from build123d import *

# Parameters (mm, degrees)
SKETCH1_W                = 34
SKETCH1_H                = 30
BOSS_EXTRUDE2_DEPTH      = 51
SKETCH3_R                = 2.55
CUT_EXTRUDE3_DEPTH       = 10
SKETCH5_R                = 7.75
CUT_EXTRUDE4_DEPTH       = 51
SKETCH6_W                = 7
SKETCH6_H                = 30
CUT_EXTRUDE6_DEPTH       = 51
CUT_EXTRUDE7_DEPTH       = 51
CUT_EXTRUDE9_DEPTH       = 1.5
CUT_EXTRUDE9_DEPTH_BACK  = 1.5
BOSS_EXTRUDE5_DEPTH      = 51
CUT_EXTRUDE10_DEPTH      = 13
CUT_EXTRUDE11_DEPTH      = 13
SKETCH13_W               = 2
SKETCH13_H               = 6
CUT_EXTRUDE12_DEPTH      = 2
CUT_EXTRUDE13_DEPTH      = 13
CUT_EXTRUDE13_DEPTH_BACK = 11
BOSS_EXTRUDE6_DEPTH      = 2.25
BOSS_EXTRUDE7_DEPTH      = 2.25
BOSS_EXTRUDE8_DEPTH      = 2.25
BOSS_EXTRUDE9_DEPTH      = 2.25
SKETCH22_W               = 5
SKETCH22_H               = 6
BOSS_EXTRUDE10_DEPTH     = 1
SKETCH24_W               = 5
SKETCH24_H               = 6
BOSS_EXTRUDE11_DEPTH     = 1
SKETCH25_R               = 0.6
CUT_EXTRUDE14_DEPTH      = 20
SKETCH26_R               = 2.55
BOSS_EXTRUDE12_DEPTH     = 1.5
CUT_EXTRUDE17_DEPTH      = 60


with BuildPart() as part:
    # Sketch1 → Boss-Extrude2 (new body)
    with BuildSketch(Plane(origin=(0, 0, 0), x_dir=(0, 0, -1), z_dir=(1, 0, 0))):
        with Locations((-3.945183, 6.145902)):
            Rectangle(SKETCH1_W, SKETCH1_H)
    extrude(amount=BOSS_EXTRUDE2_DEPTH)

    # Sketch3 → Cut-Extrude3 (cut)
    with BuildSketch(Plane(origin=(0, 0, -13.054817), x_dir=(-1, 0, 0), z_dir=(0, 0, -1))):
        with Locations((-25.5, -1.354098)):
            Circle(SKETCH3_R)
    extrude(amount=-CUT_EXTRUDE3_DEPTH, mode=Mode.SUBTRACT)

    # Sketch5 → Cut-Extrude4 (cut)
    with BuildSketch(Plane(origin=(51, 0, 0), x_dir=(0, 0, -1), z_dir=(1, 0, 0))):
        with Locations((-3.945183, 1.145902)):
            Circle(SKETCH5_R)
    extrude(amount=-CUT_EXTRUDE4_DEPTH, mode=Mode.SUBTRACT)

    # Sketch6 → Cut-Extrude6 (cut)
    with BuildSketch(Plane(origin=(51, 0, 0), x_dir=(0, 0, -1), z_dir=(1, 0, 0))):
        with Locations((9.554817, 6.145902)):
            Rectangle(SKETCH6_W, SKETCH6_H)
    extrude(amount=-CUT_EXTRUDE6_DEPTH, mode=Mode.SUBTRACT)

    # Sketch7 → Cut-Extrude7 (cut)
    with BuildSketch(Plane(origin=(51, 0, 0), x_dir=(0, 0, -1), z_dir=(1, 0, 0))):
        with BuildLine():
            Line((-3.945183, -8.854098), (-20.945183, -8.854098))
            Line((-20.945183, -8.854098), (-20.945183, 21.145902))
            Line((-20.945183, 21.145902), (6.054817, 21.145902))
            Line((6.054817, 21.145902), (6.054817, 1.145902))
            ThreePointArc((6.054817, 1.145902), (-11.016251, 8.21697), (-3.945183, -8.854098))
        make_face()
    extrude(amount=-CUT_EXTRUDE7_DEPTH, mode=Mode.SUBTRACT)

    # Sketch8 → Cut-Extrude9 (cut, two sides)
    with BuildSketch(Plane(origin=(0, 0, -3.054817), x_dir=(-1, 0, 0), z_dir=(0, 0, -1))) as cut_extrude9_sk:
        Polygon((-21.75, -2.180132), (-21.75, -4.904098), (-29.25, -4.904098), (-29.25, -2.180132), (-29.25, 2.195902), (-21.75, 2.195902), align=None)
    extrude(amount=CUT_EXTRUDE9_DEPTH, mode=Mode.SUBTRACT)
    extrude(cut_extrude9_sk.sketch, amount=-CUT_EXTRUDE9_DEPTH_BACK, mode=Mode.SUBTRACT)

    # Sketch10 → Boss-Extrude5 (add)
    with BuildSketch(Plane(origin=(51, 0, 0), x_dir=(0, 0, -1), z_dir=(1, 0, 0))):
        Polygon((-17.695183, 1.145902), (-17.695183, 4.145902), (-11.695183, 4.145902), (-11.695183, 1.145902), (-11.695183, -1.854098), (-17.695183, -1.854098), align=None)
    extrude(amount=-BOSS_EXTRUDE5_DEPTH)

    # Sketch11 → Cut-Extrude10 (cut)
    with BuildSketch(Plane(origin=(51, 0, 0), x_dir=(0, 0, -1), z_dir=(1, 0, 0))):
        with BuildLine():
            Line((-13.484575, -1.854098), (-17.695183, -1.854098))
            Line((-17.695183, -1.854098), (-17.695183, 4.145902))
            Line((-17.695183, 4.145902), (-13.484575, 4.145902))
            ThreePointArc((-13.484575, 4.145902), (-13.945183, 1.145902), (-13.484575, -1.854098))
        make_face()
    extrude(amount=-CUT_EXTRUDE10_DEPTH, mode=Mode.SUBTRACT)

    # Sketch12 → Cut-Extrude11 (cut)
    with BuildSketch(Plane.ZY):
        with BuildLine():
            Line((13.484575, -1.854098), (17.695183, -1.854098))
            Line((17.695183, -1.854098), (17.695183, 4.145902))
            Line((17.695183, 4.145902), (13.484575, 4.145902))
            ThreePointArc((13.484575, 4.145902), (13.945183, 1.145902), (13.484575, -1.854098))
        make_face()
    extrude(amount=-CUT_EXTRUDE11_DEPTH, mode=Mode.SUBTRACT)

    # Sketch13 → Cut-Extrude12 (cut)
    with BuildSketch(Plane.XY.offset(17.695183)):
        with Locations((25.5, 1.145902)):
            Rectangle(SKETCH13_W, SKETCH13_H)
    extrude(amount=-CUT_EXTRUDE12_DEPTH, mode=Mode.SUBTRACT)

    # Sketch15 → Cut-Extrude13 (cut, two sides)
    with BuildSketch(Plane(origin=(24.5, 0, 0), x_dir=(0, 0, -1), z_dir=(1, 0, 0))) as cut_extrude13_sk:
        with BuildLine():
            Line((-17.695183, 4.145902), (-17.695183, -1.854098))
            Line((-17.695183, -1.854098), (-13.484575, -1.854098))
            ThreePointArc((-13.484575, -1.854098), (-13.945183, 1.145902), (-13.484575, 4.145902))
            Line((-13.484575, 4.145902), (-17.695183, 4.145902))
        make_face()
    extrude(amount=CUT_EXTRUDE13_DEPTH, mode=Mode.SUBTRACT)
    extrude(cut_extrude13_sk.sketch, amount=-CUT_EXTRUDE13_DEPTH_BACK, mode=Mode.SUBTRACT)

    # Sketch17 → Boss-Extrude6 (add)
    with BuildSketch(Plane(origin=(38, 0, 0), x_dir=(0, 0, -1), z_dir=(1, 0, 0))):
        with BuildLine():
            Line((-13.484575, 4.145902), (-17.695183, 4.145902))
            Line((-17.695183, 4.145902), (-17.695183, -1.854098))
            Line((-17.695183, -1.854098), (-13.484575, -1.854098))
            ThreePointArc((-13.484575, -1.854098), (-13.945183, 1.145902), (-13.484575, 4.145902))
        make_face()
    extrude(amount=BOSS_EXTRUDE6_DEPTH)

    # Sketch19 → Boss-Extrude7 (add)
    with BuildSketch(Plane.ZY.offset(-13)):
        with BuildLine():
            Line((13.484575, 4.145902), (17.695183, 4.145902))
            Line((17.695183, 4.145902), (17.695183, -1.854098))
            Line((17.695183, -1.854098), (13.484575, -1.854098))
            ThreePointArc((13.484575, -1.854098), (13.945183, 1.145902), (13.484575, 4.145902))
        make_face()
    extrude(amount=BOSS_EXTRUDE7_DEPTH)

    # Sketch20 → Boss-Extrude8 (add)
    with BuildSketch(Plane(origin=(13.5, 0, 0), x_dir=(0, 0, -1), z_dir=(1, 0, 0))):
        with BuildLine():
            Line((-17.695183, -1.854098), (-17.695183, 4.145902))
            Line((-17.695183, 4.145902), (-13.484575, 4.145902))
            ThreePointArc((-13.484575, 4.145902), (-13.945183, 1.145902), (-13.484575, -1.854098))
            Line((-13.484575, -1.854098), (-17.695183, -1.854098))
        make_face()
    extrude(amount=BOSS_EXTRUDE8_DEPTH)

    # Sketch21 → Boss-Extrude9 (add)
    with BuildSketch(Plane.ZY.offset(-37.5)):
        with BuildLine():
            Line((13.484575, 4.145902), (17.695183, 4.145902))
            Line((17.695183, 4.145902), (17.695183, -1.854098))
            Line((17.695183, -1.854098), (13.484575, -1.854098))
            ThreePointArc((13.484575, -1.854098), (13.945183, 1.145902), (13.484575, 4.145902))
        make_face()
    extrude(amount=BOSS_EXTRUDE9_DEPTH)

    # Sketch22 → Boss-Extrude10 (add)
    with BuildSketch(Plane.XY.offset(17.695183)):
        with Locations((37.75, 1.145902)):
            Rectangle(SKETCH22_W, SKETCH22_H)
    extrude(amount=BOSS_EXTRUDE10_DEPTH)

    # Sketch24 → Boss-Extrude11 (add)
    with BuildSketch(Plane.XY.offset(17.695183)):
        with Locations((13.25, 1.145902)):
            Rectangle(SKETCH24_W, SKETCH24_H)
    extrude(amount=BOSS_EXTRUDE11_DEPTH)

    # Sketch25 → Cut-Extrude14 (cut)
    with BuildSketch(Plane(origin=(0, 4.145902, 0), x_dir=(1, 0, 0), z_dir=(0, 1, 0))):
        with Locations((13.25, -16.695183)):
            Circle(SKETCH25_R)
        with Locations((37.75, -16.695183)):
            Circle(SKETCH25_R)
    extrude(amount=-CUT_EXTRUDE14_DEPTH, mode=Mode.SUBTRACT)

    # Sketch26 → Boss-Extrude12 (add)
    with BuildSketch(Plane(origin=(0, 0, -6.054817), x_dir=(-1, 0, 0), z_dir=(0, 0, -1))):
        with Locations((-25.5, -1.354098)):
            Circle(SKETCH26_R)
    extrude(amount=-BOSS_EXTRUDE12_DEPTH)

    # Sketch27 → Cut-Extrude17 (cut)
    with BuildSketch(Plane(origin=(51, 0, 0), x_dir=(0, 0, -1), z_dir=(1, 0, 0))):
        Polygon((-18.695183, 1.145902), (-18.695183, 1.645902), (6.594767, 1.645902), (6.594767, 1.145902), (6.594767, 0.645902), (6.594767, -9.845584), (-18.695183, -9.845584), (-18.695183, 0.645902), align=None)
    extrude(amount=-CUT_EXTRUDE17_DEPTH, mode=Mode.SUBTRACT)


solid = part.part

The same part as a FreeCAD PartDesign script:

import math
import FreeCAD as App
import Part
import Sketcher

doc = App.newDocument("Part")
params = doc.addObject("Spreadsheet::Sheet", "Params")
for row, (alias, value) in enumerate([
    ("sketch1_width", "30 mm"),
    ("sketch1_height", "34 mm"),
    ("pad1_length", "51 mm"),
    ("sketch2_diameter", "5.1 mm"),
    ("pocket1_length", "10 mm"),
    ("sketch3_diameter", "15.5 mm"),
    ("pocket2_length", "51 mm"),
    ("sketch4_width", "30 mm"),
    ("sketch4_height", "7 mm"),
    ("pocket3_length", "51 mm"),
    ("sketch5_radius", "10 mm"),
    ("sketch5_width", "20 mm"),
    ("sketch5_height", "17 mm"),
    ("pocket4_length", "51 mm"),
    ("sketch6_width", "7.5 mm"),
    ("sketch6_height", "7.1 mm"),
    ("pocket5_length", "1.5 mm"),
    ("pocket5_length2", "1.5 mm"),
    ("sketch7_width", "6 mm"),
    ("pad2_length", "51 mm"),
    ("sketch8_radius", "10 mm"),
    ("sketch8_width", "6 mm"),
    ("pocket6_length", "13 mm"),
    ("sketch9_radius", "10 mm"),
    ("sketch9_width", "6 mm"),
    ("pocket7_length", "13 mm"),
    ("sketch10_width", "2 mm"),
    ("sketch10_height", "6 mm"),
    ("pocket8_length", "2 mm"),
    ("sketch11_radius", "10 mm"),
    ("sketch11_width", "6 mm"),
    ("pocket9_length", "13 mm"),
    ("pocket9_length2", "11 mm"),
    ("sketch12_radius", "10 mm"),
    ("sketch12_width", "6 mm"),
    ("pad3_length", "2.25 mm"),
    ("sketch13_radius", "10 mm"),
    ("sketch13_width", "6 mm"),
    ("pad4_length", "2.25 mm"),
    ("sketch14_radius", "10 mm"),
    ("sketch14_width", "6 mm"),
    ("pad5_length", "2.25 mm"),
    ("sketch15_radius", "10 mm"),
    ("sketch15_width", "6 mm"),
    ("pad6_length", "2.25 mm"),
    ("sketch16_width", "5 mm"),
    ("sketch16_height", "6 mm"),
    ("pad7_length", "1 mm"),
    ("sketch17_width", "5 mm"),
    ("sketch17_height", "6 mm"),
    ("pad8_length", "1 mm"),
    ("sketch18_diameter", "1.2 mm"),
    ("pocket10_length", "20 mm"),
    ("sketch19_diameter", "5.1 mm"),
    ("pad9_length", "1.5 mm"),
    ("pocket11_length", "60 mm"),
], start=1):
    params.set(f"A{row}", alias)
    params.set(f"B{row}", "=" + value)
    params.setAlias(f"B{row}", alias)

body = doc.addObject("PartDesign::Body", "Body")

sketch1 = body.newObject("Sketcher::SketchObject", "Sketch")
sketch1.AttachmentSupport = (doc.getObject("YZ_Plane"), [""])
sketch1.MapMode = "FlatFace"
sketch1.addGeometry(Part.LineSegment(App.Vector(21, 21, 0), App.Vector(-9, 21, 0)), False)
sketch1.addGeometry(Part.LineSegment(App.Vector(-9, 21, 0), App.Vector(-9, -13, 0)), False)
sketch1.addGeometry(Part.LineSegment(App.Vector(-9, -13, 0), App.Vector(21, -13, 0)), False)
sketch1.addGeometry(Part.LineSegment(App.Vector(21, -13, 0), App.Vector(21, 21, 0)), False)
sketch1.addConstraint(Sketcher.Constraint("Coincident", 0, 2, 1, 1))
sketch1.addConstraint(Sketcher.Constraint("Coincident", 1, 2, 2, 1))
sketch1.addConstraint(Sketcher.Constraint("Coincident", 2, 2, 3, 1))
sketch1.addConstraint(Sketcher.Constraint("Coincident", 3, 2, 0, 1))
sketch1.addConstraint(Sketcher.Constraint("Horizontal", 0))
sketch1.addConstraint(Sketcher.Constraint("Vertical", 1))
sketch1.addConstraint(Sketcher.Constraint("Horizontal", 2))
sketch1.addConstraint(Sketcher.Constraint("Vertical", 3))
sketch1.addConstraint(Sketcher.Constraint("DistanceX", 0, 2, 0, 1, 30.0))
sketch1.addConstraint(Sketcher.Constraint("DistanceY", 1, 2, 1, 1, 34.0))
sketch1.addConstraint(Sketcher.Constraint("DistanceX", -1, 1, 2, 2, 21.145902))
sketch1.addConstraint(Sketcher.Constraint("DistanceY", -1, 1, 0, 2, 20.945183))
sketch1.setExpression("Constraints[8]", "Params.sketch1_width")
sketch1.setExpression("Constraints[9]", "Params.sketch1_height")
pad1 = body.newObject("PartDesign::Pad", "Pad")
pad1.Profile = sketch1
pad1.setExpression("Length", "Params.pad1_length")

sketch2 = body.newObject("Sketcher::SketchObject", "Sketch001")
sketch2.AttachmentSupport = (doc.getObject("XY_Plane"), [""])
sketch2.MapMode = "FlatFace"
sketch2.AttachmentOffset = App.Placement(App.Vector(0, 0, -13.054817), App.Rotation())
sketch2.addGeometry(Part.Circle(App.Vector(25.5, -1.4, 0), App.Vector(0, 0, 1), 2.5), False)
sketch2.addConstraint(Sketcher.Constraint("Diameter", 0, 5.1))
sketch2.addConstraint(Sketcher.Constraint("DistanceX", -1, 1, 0, 3, 25.5))
sketch2.addConstraint(Sketcher.Constraint("DistanceY", 0, 3, -1, 1, 1.354098))
sketch2.setExpression("Constraints[0]", "Params.sketch2_diameter")
pocket1 = body.newObject("PartDesign::Pocket", "Pocket")
pocket1.Profile = sketch2
pocket1.setExpression("Length", "Params.pocket1_length")
pocket1.Reversed = True

sketch3 = body.newObject("Sketcher::SketchObject", "Sketch002")
sketch3.AttachmentSupport = (doc.getObject("YZ_Plane"), [""])
sketch3.MapMode = "FlatFace"
sketch3.AttachmentOffset = App.Placement(App.Vector(0, 0, 51), App.Rotation())
sketch3.addGeometry(Part.Circle(App.Vector(1, 4, 0), App.Vector(0, 0, 1), 8), False)
sketch3.addConstraint(Sketcher.Constraint("Diameter", 0, 15.5))
sketch3.addConstraint(Sketcher.Constraint("DistanceX", -1, 1, 0, 3, 1.145902))
sketch3.addConstraint(Sketcher.Constraint("DistanceY", -1, 1, 0, 3, 3.945183))
sketch3.setExpression("Constraints[0]", "Params.sketch3_diameter")
pocket2 = body.newObject("PartDesign::Pocket", "Pocket001")
pocket2.Profile = sketch3
pocket2.setExpression("Length", "Params.pocket2_length")

sketch4 = body.newObject("Sketcher::SketchObject", "Sketch003")
sketch4.AttachmentSupport = (doc.getObject("YZ_Plane"), [""])
sketch4.MapMode = "FlatFace"
sketch4.AttachmentOffset = App.Placement(App.Vector(0, 0, 51), App.Rotation())
sketch4.addGeometry(Part.LineSegment(App.Vector(21, -6, 0), App.Vector(-9, -6, 0)), False)
sketch4.addGeometry(Part.LineSegment(App.Vector(-9, -6, 0), App.Vector(-9, -13, 0)), False)
sketch4.addGeometry(Part.LineSegment(App.Vector(-9, -13, 0), App.Vector(21, -13, 0)), False)
sketch4.addGeometry(Part.LineSegment(App.Vector(21, -13, 0), App.Vector(21, -6, 0)), False)
sketch4.addConstraint(Sketcher.Constraint("Coincident", 0, 2, 1, 1))
sketch4.addConstraint(Sketcher.Constraint("Coincident", 1, 2, 2, 1))
sketch4.addConstraint(Sketcher.Constraint("Coincident", 2, 2, 3, 1))
sketch4.addConstraint(Sketcher.Constraint("Coincident", 3, 2, 0, 1))
sketch4.addConstraint(Sketcher.Constraint("Horizontal", 0))
sketch4.addConstraint(Sketcher.Constraint("Vertical", 1))
sketch4.addConstraint(Sketcher.Constraint("Horizontal", 2))
sketch4.addConstraint(Sketcher.Constraint("Vertical", 3))
sketch4.addConstraint(Sketcher.Constraint("DistanceX", 0, 2, 0, 1, 30.0))
sketch4.addConstraint(Sketcher.Constraint("DistanceY", 1, 2, 1, 1, 7.0))
sketch4.addConstraint(Sketcher.Constraint("DistanceX", -1, 1, 2, 2, 21.145902))
sketch4.addConstraint(Sketcher.Constraint("DistanceY", 0, 2, -1, 1, 6.054817))
sketch4.setExpression("Constraints[8]", "Params.sketch4_width")
sketch4.setExpression("Constraints[9]", "Params.sketch4_height")
pocket3 = body.newObject("PartDesign::Pocket", "Pocket002")
pocket3.Profile = sketch4
pocket3.setExpression("Length", "Params.pocket3_length")

sketch5 = body.newObject("Sketcher::SketchObject", "Sketch004")
sketch5.AttachmentSupport = (doc.getObject("YZ_Plane"), [""])
sketch5.MapMode = "FlatFace"
sketch5.AttachmentOffset = App.Placement(App.Vector(0, 0, 51), App.Rotation())
sketch5.addGeometry(Part.LineSegment(App.Vector(-9, 21, 0), App.Vector(-9, 4, 0)), False)
sketch5.addGeometry(Part.ArcOfCircle(Part.Circle(App.Vector(1, 4, 0), App.Vector(0, 0, 1), 10), math.radians(-90), math.radians(180)), False)
sketch5.addGeometry(Part.LineSegment(App.Vector(1, -6, 0), App.Vector(21, -6, 0)), False)
sketch5.addGeometry(Part.LineSegment(App.Vector(21, -6, 0), App.Vector(21, 21, 0)), False)
sketch5.addGeometry(Part.LineSegment(App.Vector(21, 21, 0), App.Vector(-9, 21, 0)), False)
sketch5.addConstraint(Sketcher.Constraint("Tangent", 0, 2, 1, 2))
sketch5.addConstraint(Sketcher.Constraint("Tangent", 1, 1, 2, 1))
sketch5.addConstraint(Sketcher.Constraint("Coincident", 2, 2, 3, 1))
sketch5.addConstraint(Sketcher.Constraint("Coincident", 3, 2, 4, 1))
sketch5.addConstraint(Sketcher.Constraint("Coincident", 4, 2, 0, 1))
sketch5.addConstraint(Sketcher.Constraint("Vertical", 0))
sketch5.addConstraint(Sketcher.Constraint("Horizontal", 2))
sketch5.addConstraint(Sketcher.Constraint("Vertical", 3))
sketch5.addConstraint(Sketcher.Constraint("Horizontal", 4))
sketch5.addConstraint(Sketcher.Constraint("Radius", 1, 10.0))
sketch5.addConstraint(Sketcher.Constraint("DistanceX", 2, 1, 2, 2, 20.0))
sketch5.addConstraint(Sketcher.Constraint("DistanceY", 0, 2, 0, 1, 17.0))
sketch5.addConstraint(Sketcher.Constraint("DistanceX", -1, 1, 1, 1, 1.145902))
sketch5.addConstraint(Sketcher.Constraint("DistanceY", -1, 1, 1, 3, 3.945183))
sketch5.setExpression("Constraints[9]", "Params.sketch5_radius")
sketch5.setExpression("Constraints[10]", "Params.sketch5_width")
sketch5.setExpression("Constraints[11]", "Params.sketch5_height")
pocket4 = body.newObject("PartDesign::Pocket", "Pocket003")
pocket4.Profile = sketch5
pocket4.setExpression("Length", "Params.pocket4_length")

sketch6 = body.newObject("Sketcher::SketchObject", "Sketch005")
sketch6.AttachmentSupport = (doc.getObject("XY_Plane"), [""])
sketch6.MapMode = "FlatFace"
sketch6.AttachmentOffset = App.Placement(App.Vector(0, 0, -3.054817), App.Rotation())
sketch6.addGeometry(Part.LineSegment(App.Vector(22, -5, 0), App.Vector(22, 2, 0)), False)
sketch6.addGeometry(Part.LineSegment(App.Vector(22, 2, 0), App.Vector(29, 2, 0)), False)
sketch6.addGeometry(Part.LineSegment(App.Vector(29, 2, 0), App.Vector(29, -5, 0)), False)
sketch6.addGeometry(Part.LineSegment(App.Vector(29, -5, 0), App.Vector(22, -5, 0)), False)
sketch6.addConstraint(Sketcher.Constraint("Coincident", 0, 2, 1, 1))
sketch6.addConstraint(Sketcher.Constraint("Coincident", 1, 2, 2, 1))
sketch6.addConstraint(Sketcher.Constraint("Coincident", 2, 2, 3, 1))
sketch6.addConstraint(Sketcher.Constraint("Coincident", 3, 2, 0, 1))
sketch6.addConstraint(Sketcher.Constraint("Vertical", 0))
sketch6.addConstraint(Sketcher.Constraint("Horizontal", 1))
sketch6.addConstraint(Sketcher.Constraint("Vertical", 2))
sketch6.addConstraint(Sketcher.Constraint("Horizontal", 3))
sketch6.addConstraint(Sketcher.Constraint("DistanceX", 1, 1, 1, 2, 7.5))
sketch6.addConstraint(Sketcher.Constraint("DistanceY", 0, 1, 0, 2, 7.1))
sketch6.addConstraint(Sketcher.Constraint("DistanceX", -1, 1, 0, 2, 21.75))
sketch6.addConstraint(Sketcher.Constraint("DistanceY", -1, 1, 0, 2, 2.195902))
sketch6.setExpression("Constraints[8]", "Params.sketch6_width")
sketch6.setExpression("Constraints[9]", "Params.sketch6_height")
pocket5 = body.newObject("PartDesign::Pocket", "Pocket004")
pocket5.Profile = sketch6
pocket5.Type = "TwoLengths"
pocket5.setExpression("Length", "Params.pocket5_length")
pocket5.setExpression("Length2", "Params.pocket5_length2")

sketch7 = body.newObject("Sketcher::SketchObject", "Sketch006")
sketch7.AttachmentSupport = (doc.getObject("YZ_Plane"), [""])
sketch7.MapMode = "FlatFace"
sketch7.AttachmentOffset = App.Placement(App.Vector(0, 0, 51), App.Rotation())
sketch7.addGeometry(Part.LineSegment(App.Vector(4, 18, 0), App.Vector(-2, 18, 0)), False)
sketch7.addGeometry(Part.LineSegment(App.Vector(-2, 18, 0), App.Vector(-2, 12, 0)), False)
sketch7.addGeometry(Part.LineSegment(App.Vector(-2, 12, 0), App.Vector(4, 12, 0)), False)
sketch7.addGeometry(Part.LineSegment(App.Vector(4, 12, 0), App.Vector(4, 18, 0)), False)
sketch7.addConstraint(Sketcher.Constraint("Coincident", 0, 2, 1, 1))
sketch7.addConstraint(Sketcher.Constraint("Coincident", 1, 2, 2, 1))
sketch7.addConstraint(Sketcher.Constraint("Coincident", 2, 2, 3, 1))
sketch7.addConstraint(Sketcher.Constraint("Coincident", 3, 2, 0, 1))
sketch7.addConstraint(Sketcher.Constraint("Horizontal", 0))
sketch7.addConstraint(Sketcher.Constraint("Vertical", 1))
sketch7.addConstraint(Sketcher.Constraint("Horizontal", 2))
sketch7.addConstraint(Sketcher.Constraint("Vertical", 3))
sketch7.addConstraint(Sketcher.Constraint("Equal", 2, 1))
sketch7.addConstraint(Sketcher.Constraint("DistanceX", 0, 2, 0, 1, 6.0))
sketch7.addConstraint(Sketcher.Constraint("DistanceX", 0, 2, -1, 1, 1.854098))
sketch7.addConstraint(Sketcher.Constraint("DistanceY", -1, 1, 0, 2, 17.695183))
sketch7.setExpression("Constraints[9]", "Params.sketch7_width")
pad2 = body.newObject("PartDesign::Pad", "Pad001")
pad2.Profile = sketch7
pad2.setExpression("Length", "Params.pad2_length")
pad2.Reversed = True

sketch8 = body.newObject("Sketcher::SketchObject", "Sketch007")
sketch8.AttachmentSupport = (doc.getObject("YZ_Plane"), [""])
sketch8.MapMode = "FlatFace"
sketch8.AttachmentOffset = App.Placement(App.Vector(0, 0, 51), App.Rotation())
sketch8.addGeometry(Part.LineSegment(App.Vector(-1.9, 17.7, 0), App.Vector(-1.9, 13.5, 0)), False)
sketch8.addGeometry(Part.ArcOfCircle(Part.Circle(App.Vector(1.1, 3.9, 0), App.Vector(0, 0, 1), 10), math.radians(73), math.radians(107)), False)
sketch8.addGeometry(Part.LineSegment(App.Vector(4.1, 13.5, 0), App.Vector(4.1, 17.7, 0)), False)
sketch8.addGeometry(Part.LineSegment(App.Vector(4.1, 17.7, 0), App.Vector(-1.9, 17.7, 0)), False)
sketch8.addConstraint(Sketcher.Constraint("Coincident", 0, 2, 1, 2))
sketch8.addConstraint(Sketcher.Constraint("Coincident", 1, 1, 2, 1))
sketch8.addConstraint(Sketcher.Constraint("Coincident", 2, 2, 3, 1))
sketch8.addConstraint(Sketcher.Constraint("Coincident", 3, 2, 0, 1))
sketch8.addConstraint(Sketcher.Constraint("Vertical", 0))
sketch8.addConstraint(Sketcher.Constraint("Vertical", 2))
sketch8.addConstraint(Sketcher.Constraint("Horizontal", 3))
sketch8.addConstraint(Sketcher.Constraint("Horizontal", 0, 2, 1, 1))
sketch8.addConstraint(Sketcher.Constraint("Radius", 1, 10.0))
sketch8.addConstraint(Sketcher.Constraint("DistanceX", 3, 2, 3, 1, 6.0))
sketch8.addConstraint(Sketcher.Constraint("DistanceY", 1, 3, 2, 2, 13.75))
sketch8.addConstraint(Sketcher.Constraint("DistanceX", -1, 1, 1, 3, 1.145902))
sketch8.addConstraint(Sketcher.Constraint("DistanceY", -1, 1, 1, 3, 3.945183))
sketch8.setExpression("Constraints[8]", "Params.sketch8_radius")
sketch8.setExpression("Constraints[9]", "Params.sketch8_width")
pocket6 = body.newObject("PartDesign::Pocket", "Pocket005")
pocket6.Profile = sketch8
pocket6.setExpression("Length", "Params.pocket6_length")

sketch9 = body.newObject("Sketcher::SketchObject", "Sketch008")
sketch9.AttachmentSupport = (doc.getObject("YZ_Plane"), [""])
sketch9.MapMode = "FlatFace"
sketch9.addGeometry(Part.LineSegment(App.Vector(-1.9, 13.5, 0), App.Vector(-1.9, 17.7, 0)), False)
sketch9.addGeometry(Part.LineSegment(App.Vector(-1.9, 17.7, 0), App.Vector(4.1, 17.7, 0)), False)
sketch9.addGeometry(Part.LineSegment(App.Vector(4.1, 17.7, 0), App.Vector(4.1, 13.5, 0)), False)
sketch9.addGeometry(Part.ArcOfCircle(Part.Circle(App.Vector(1.1, 3.9, 0), App.Vector(0, 0, 1), 10), math.radians(73), math.radians(107)), False)
sketch9.addConstraint(Sketcher.Constraint("Coincident", 0, 2, 1, 1))
sketch9.addConstraint(Sketcher.Constraint("Coincident", 1, 2, 2, 1))
sketch9.addConstraint(Sketcher.Constraint("Coincident", 2, 2, 3, 1))
sketch9.addConstraint(Sketcher.Constraint("Coincident", 3, 2, 0, 1))
sketch9.addConstraint(Sketcher.Constraint("Vertical", 0))
sketch9.addConstraint(Sketcher.Constraint("Horizontal", 1))
sketch9.addConstraint(Sketcher.Constraint("Vertical", 2))
sketch9.addConstraint(Sketcher.Constraint("Horizontal", 2, 2, 3, 2))
sketch9.addConstraint(Sketcher.Constraint("Radius", 3, 10.0))
sketch9.addConstraint(Sketcher.Constraint("DistanceX", 1, 1, 1, 2, 6.0))
sketch9.addConstraint(Sketcher.Constraint("DistanceY", 3, 3, 0, 2, 13.75))
sketch9.addConstraint(Sketcher.Constraint("DistanceX", 3, 2, -1, 1, 1.854098))
sketch9.addConstraint(Sketcher.Constraint("DistanceY", -1, 1, 3, 3, 3.945183))
sketch9.setExpression("Constraints[8]", "Params.sketch9_radius")
sketch9.setExpression("Constraints[9]", "Params.sketch9_width")
pocket7 = body.newObject("PartDesign::Pocket", "Pocket006")
pocket7.Profile = sketch9
pocket7.setExpression("Length", "Params.pocket7_length")
pocket7.Reversed = True

sketch10 = body.newObject("Sketcher::SketchObject", "Sketch009")
sketch10.AttachmentSupport = (doc.getObject("XY_Plane"), [""])
sketch10.MapMode = "FlatFace"
sketch10.AttachmentOffset = App.Placement(App.Vector(0, 0, 17.695183), App.Rotation())
sketch10.addGeometry(Part.LineSegment(App.Vector(24.5, 4.1, 0), App.Vector(24.5, -1.9, 0)), False)
sketch10.addGeometry(Part.LineSegment(App.Vector(24.5, -1.9, 0), App.Vector(26.5, -1.9, 0)), False)
sketch10.addGeometry(Part.LineSegment(App.Vector(26.5, -1.9, 0), App.Vector(26.5, 4.1, 0)), False)
sketch10.addGeometry(Part.LineSegment(App.Vector(26.5, 4.1, 0), App.Vector(24.5, 4.1, 0)), False)
sketch10.addConstraint(Sketcher.Constraint("Coincident", 0, 2, 1, 1))
sketch10.addConstraint(Sketcher.Constraint("Coincident", 1, 2, 2, 1))
sketch10.addConstraint(Sketcher.Constraint("Coincident", 2, 2, 3, 1))
sketch10.addConstraint(Sketcher.Constraint("Coincident", 3, 2, 0, 1))
sketch10.addConstraint(Sketcher.Constraint("Vertical", 0))
sketch10.addConstraint(Sketcher.Constraint("Horizontal", 1))
sketch10.addConstraint(Sketcher.Constraint("Vertical", 2))
sketch10.addConstraint(Sketcher.Constraint("Horizontal", 3))
sketch10.addConstraint(Sketcher.Constraint("DistanceX", 1, 1, 1, 2, 2.0))
sketch10.addConstraint(Sketcher.Constraint("DistanceY", 0, 2, 0, 1, 6.0))
sketch10.addConstraint(Sketcher.Constraint("DistanceX", -1, 1, 0, 2, 24.5))
sketch10.addConstraint(Sketcher.Constraint("DistanceY", 0, 2, -1, 1, 1.854098))
sketch10.setExpression("Constraints[8]", "Params.sketch10_width")
sketch10.setExpression("Constraints[9]", "Params.sketch10_height")
pocket8 = body.newObject("PartDesign::Pocket", "Pocket007")
pocket8.Profile = sketch10
pocket8.setExpression("Length", "Params.pocket8_length")

sketch11 = body.newObject("Sketcher::SketchObject", "Sketch010")
sketch11.AttachmentSupport = (doc.getObject("YZ_Plane"), [""])
sketch11.MapMode = "FlatFace"
sketch11.AttachmentOffset = App.Placement(App.Vector(0, 0, 24.5), App.Rotation())
sketch11.addGeometry(Part.LineSegment(App.Vector(4.1, 17.7, 0), App.Vector(-1.9, 17.7, 0)), False)
sketch11.addGeometry(Part.LineSegment(App.Vector(-1.9, 17.7, 0), App.Vector(-1.9, 13.5, 0)), False)
sketch11.addGeometry(Part.ArcOfCircle(Part.Circle(App.Vector(1.1, 3.9, 0), App.Vector(0, 0, 1), 10), math.radians(73), math.radians(107)), False)
sketch11.addGeometry(Part.LineSegment(App.Vector(4.1, 13.5, 0), App.Vector(4.1, 17.7, 0)), False)
sketch11.addConstraint(Sketcher.Constraint("Coincident", 0, 2, 1, 1))
sketch11.addConstraint(Sketcher.Constraint("Coincident", 1, 2, 2, 2))
sketch11.addConstraint(Sketcher.Constraint("Coincident", 2, 1, 3, 1))
sketch11.addConstraint(Sketcher.Constraint("Coincident", 3, 2, 0, 1))
sketch11.addConstraint(Sketcher.Constraint("Horizontal", 0))
sketch11.addConstraint(Sketcher.Constraint("Vertical", 1))
sketch11.addConstraint(Sketcher.Constraint("Vertical", 3))
sketch11.addConstraint(Sketcher.Constraint("Horizontal", 1, 2, 2, 1))
sketch11.addConstraint(Sketcher.Constraint("Radius", 2, 10.0))
sketch11.addConstraint(Sketcher.Constraint("DistanceX", 0, 2, 0, 1, 6.0))
sketch11.addConstraint(Sketcher.Constraint("DistanceY", 2, 3, 0, 2, 13.75))
sketch11.addConstraint(Sketcher.Constraint("DistanceX", -1, 1, 2, 3, 1.145902))
sketch11.addConstraint(Sketcher.Constraint("DistanceY", -1, 1, 2, 3, 3.945183))
sketch11.setExpression("Constraints[8]", "Params.sketch11_radius")
sketch11.setExpression("Constraints[9]", "Params.sketch11_width")
pocket9 = body.newObject("PartDesign::Pocket", "Pocket008")
pocket9.Profile = sketch11
pocket9.Type = "TwoLengths"
pocket9.setExpression("Length", "Params.pocket9_length")
pocket9.setExpression("Length2", "Params.pocket9_length2")
pocket9.Reversed = True

sketch12 = body.newObject("Sketcher::SketchObject", "Sketch011")
sketch12.AttachmentSupport = (doc.getObject("YZ_Plane"), [""])
sketch12.MapMode = "FlatFace"
sketch12.AttachmentOffset = App.Placement(App.Vector(0, 0, 38), App.Rotation())
sketch12.addGeometry(Part.LineSegment(App.Vector(4.1, 13.5, 0), App.Vector(4.1, 17.7, 0)), False)
sketch12.addGeometry(Part.LineSegment(App.Vector(4.1, 17.7, 0), App.Vector(-1.9, 17.7, 0)), False)
sketch12.addGeometry(Part.LineSegment(App.Vector(-1.9, 17.7, 0), App.Vector(-1.9, 13.5, 0)), False)
sketch12.addGeometry(Part.ArcOfCircle(Part.Circle(App.Vector(1.1, 3.9, 0), App.Vector(0, 0, 1), 10), math.radians(73), math.radians(107)), False)
sketch12.addConstraint(Sketcher.Constraint("Coincident", 0, 2, 1, 1))
sketch12.addConstraint(Sketcher.Constraint("Coincident", 1, 2, 2, 1))
sketch12.addConstraint(Sketcher.Constraint("Coincident", 2, 2, 3, 2))
sketch12.addConstraint(Sketcher.Constraint("Coincident", 3, 1, 0, 1))
sketch12.addConstraint(Sketcher.Constraint("Vertical", 0))
sketch12.addConstraint(Sketcher.Constraint("Horizontal", 1))
sketch12.addConstraint(Sketcher.Constraint("Vertical", 2))
sketch12.addConstraint(Sketcher.Constraint("Horizontal", 2, 2, 3, 1))
sketch12.addConstraint(Sketcher.Constraint("Radius", 3, 10.0))
sketch12.addConstraint(Sketcher.Constraint("DistanceX", 1, 2, 1, 1, 6.0))
sketch12.addConstraint(Sketcher.Constraint("DistanceY", 3, 3, 0, 2, 13.75))
sketch12.addConstraint(Sketcher.Constraint("DistanceX", -1, 1, 3, 3, 1.145902))
sketch12.addConstraint(Sketcher.Constraint("DistanceY", -1, 1, 3, 3, 3.945183))
sketch12.setExpression("Constraints[8]", "Params.sketch12_radius")
sketch12.setExpression("Constraints[9]", "Params.sketch12_width")
pad3 = body.newObject("PartDesign::Pad", "Pad002")
pad3.Profile = sketch12
pad3.setExpression("Length", "Params.pad3_length")

sketch13 = body.newObject("Sketcher::SketchObject", "Sketch012")
sketch13.AttachmentSupport = (doc.getObject("YZ_Plane"), [""])
sketch13.MapMode = "FlatFace"
sketch13.AttachmentOffset = App.Placement(App.Vector(0, 0, 13), App.Rotation())
sketch13.addGeometry(Part.LineSegment(App.Vector(4.1, 17.7, 0), App.Vector(4.1, 13.5, 0)), False)
sketch13.addGeometry(Part.ArcOfCircle(Part.Circle(App.Vector(1.1, 3.9, 0), App.Vector(0, 0, 1), 10), math.radians(73), math.radians(107)), False)
sketch13.addGeometry(Part.LineSegment(App.Vector(-1.9, 13.5, 0), App.Vector(-1.9, 17.7, 0)), False)
sketch13.addGeometry(Part.LineSegment(App.Vector(-1.9, 17.7, 0), App.Vector(4.1, 17.7, 0)), False)
sketch13.addConstraint(Sketcher.Constraint("Coincident", 0, 2, 1, 1))
sketch13.addConstraint(Sketcher.Constraint("Coincident", 1, 2, 2, 1))
sketch13.addConstraint(Sketcher.Constraint("Coincident", 2, 2, 3, 1))
sketch13.addConstraint(Sketcher.Constraint("Coincident", 3, 2, 0, 1))
sketch13.addConstraint(Sketcher.Constraint("Vertical", 0))
sketch13.addConstraint(Sketcher.Constraint("Vertical", 2))
sketch13.addConstraint(Sketcher.Constraint("Horizontal", 3))
sketch13.addConstraint(Sketcher.Constraint("Horizontal", 0, 2, 1, 2))
sketch13.addConstraint(Sketcher.Constraint("Radius", 1, 10.0))
sketch13.addConstraint(Sketcher.Constraint("DistanceX", 3, 1, 3, 2, 6.0))
sketch13.addConstraint(Sketcher.Constraint("DistanceY", 1, 3, 2, 2, 13.75))
sketch13.addConstraint(Sketcher.Constraint("DistanceX", 1, 2, -1, 1, 1.854098))
sketch13.addConstraint(Sketcher.Constraint("DistanceY", -1, 1, 1, 3, 3.945183))
sketch13.setExpression("Constraints[8]", "Params.sketch13_radius")
sketch13.setExpression("Constraints[9]", "Params.sketch13_width")
pad4 = body.newObject("PartDesign::Pad", "Pad003")
pad4.Profile = sketch13
pad4.setExpression("Length", "Params.pad4_length")
pad4.Reversed = True

sketch14 = body.newObject("Sketcher::SketchObject", "Sketch013")
sketch14.AttachmentSupport = (doc.getObject("YZ_Plane"), [""])
sketch14.MapMode = "FlatFace"
sketch14.AttachmentOffset = App.Placement(App.Vector(0, 0, 13.5), App.Rotation())
sketch14.addGeometry(Part.LineSegment(App.Vector(4.1, 17.7, 0), App.Vector(-1.9, 17.7, 0)), False)
sketch14.addGeometry(Part.LineSegment(App.Vector(-1.9, 17.7, 0), App.Vector(-1.9, 13.5, 0)), False)
sketch14.addGeometry(Part.ArcOfCircle(Part.Circle(App.Vector(1.1, 3.9, 0), App.Vector(0, 0, 1), 10), math.radians(73), math.radians(107)), False)
sketch14.addGeometry(Part.LineSegment(App.Vector(4.1, 13.5, 0), App.Vector(4.1, 17.7, 0)), False)
sketch14.addConstraint(Sketcher.Constraint("Coincident", 0, 2, 1, 1))
sketch14.addConstraint(Sketcher.Constraint("Coincident", 1, 2, 2, 2))
sketch14.addConstraint(Sketcher.Constraint("Coincident", 2, 1, 3, 1))
sketch14.addConstraint(Sketcher.Constraint("Coincident", 3, 2, 0, 1))
sketch14.addConstraint(Sketcher.Constraint("Horizontal", 0))
sketch14.addConstraint(Sketcher.Constraint("Vertical", 1))
sketch14.addConstraint(Sketcher.Constraint("Vertical", 3))
sketch14.addConstraint(Sketcher.Constraint("Horizontal", 1, 2, 2, 1))
sketch14.addConstraint(Sketcher.Constraint("Radius", 2, 10.0))
sketch14.addConstraint(Sketcher.Constraint("DistanceX", 0, 2, 0, 1, 6.0))
sketch14.addConstraint(Sketcher.Constraint("DistanceY", 2, 3, 0, 2, 13.75))
sketch14.addConstraint(Sketcher.Constraint("DistanceX", -1, 1, 2, 3, 1.145902))
sketch14.addConstraint(Sketcher.Constraint("DistanceY", -1, 1, 2, 3, 3.945183))
sketch14.setExpression("Constraints[8]", "Params.sketch14_radius")
sketch14.setExpression("Constraints[9]", "Params.sketch14_width")
pad5 = body.newObject("PartDesign::Pad", "Pad004")
pad5.Profile = sketch14
pad5.setExpression("Length", "Params.pad5_length")

sketch15 = body.newObject("Sketcher::SketchObject", "Sketch014")
sketch15.AttachmentSupport = (doc.getObject("YZ_Plane"), [""])
sketch15.MapMode = "FlatFace"
sketch15.AttachmentOffset = App.Placement(App.Vector(0, 0, 37.5), App.Rotation())
sketch15.addGeometry(Part.LineSegment(App.Vector(4.1, 17.7, 0), App.Vector(4.1, 13.5, 0)), False)
sketch15.addGeometry(Part.ArcOfCircle(Part.Circle(App.Vector(1.1, 3.9, 0), App.Vector(0, 0, 1), 10), math.radians(73), math.radians(107)), False)
sketch15.addGeometry(Part.LineSegment(App.Vector(-1.9, 13.5, 0), App.Vector(-1.9, 17.7, 0)), False)
sketch15.addGeometry(Part.LineSegment(App.Vector(-1.9, 17.7, 0), App.Vector(4.1, 17.7, 0)), False)
sketch15.addConstraint(Sketcher.Constraint("Coincident", 0, 2, 1, 1))
sketch15.addConstraint(Sketcher.Constraint("Coincident", 1, 2, 2, 1))
sketch15.addConstraint(Sketcher.Constraint("Coincident", 2, 2, 3, 1))
sketch15.addConstraint(Sketcher.Constraint("Coincident", 3, 2, 0, 1))
sketch15.addConstraint(Sketcher.Constraint("Vertical", 0))
sketch15.addConstraint(Sketcher.Constraint("Vertical", 2))
sketch15.addConstraint(Sketcher.Constraint("Horizontal", 3))
sketch15.addConstraint(Sketcher.Constraint("Horizontal", 0, 2, 1, 2))
sketch15.addConstraint(Sketcher.Constraint("Radius", 1, 10.0))
sketch15.addConstraint(Sketcher.Constraint("DistanceX", 3, 1, 3, 2, 6.0))
sketch15.addConstraint(Sketcher.Constraint("DistanceY", 1, 3, 2, 2, 13.75))
sketch15.addConstraint(Sketcher.Constraint("DistanceX", 1, 2, -1, 1, 1.854098))
sketch15.addConstraint(Sketcher.Constraint("DistanceY", -1, 1, 1, 3, 3.945183))
sketch15.setExpression("Constraints[8]", "Params.sketch15_radius")
sketch15.setExpression("Constraints[9]", "Params.sketch15_width")
pad6 = body.newObject("PartDesign::Pad", "Pad005")
pad6.Profile = sketch15
pad6.setExpression("Length", "Params.pad6_length")
pad6.Reversed = True

sketch16 = body.newObject("Sketcher::SketchObject", "Sketch015")
sketch16.AttachmentSupport = (doc.getObject("XY_Plane"), [""])
sketch16.MapMode = "FlatFace"
sketch16.AttachmentOffset = App.Placement(App.Vector(0, 0, 17.695183), App.Rotation())
sketch16.addGeometry(Part.LineSegment(App.Vector(35, 4, 0), App.Vector(35, -2, 0)), False)
sketch16.addGeometry(Part.LineSegment(App.Vector(35, -2, 0), App.Vector(40, -2, 0)), False)
sketch16.addGeometry(Part.LineSegment(App.Vector(40, -2, 0), App.Vector(40, 4, 0)), False)
sketch16.addGeometry(Part.LineSegment(App.Vector(40, 4, 0), App.Vector(35, 4, 0)), False)
sketch16.addConstraint(Sketcher.Constraint("Coincident", 0, 2, 1, 1))
sketch16.addConstraint(Sketcher.Constraint("Coincident", 1, 2, 2, 1))
sketch16.addConstraint(Sketcher.Constraint("Coincident", 2, 2, 3, 1))
sketch16.addConstraint(Sketcher.Constraint("Coincident", 3, 2, 0, 1))
sketch16.addConstraint(Sketcher.Constraint("Vertical", 0))
sketch16.addConstraint(Sketcher.Constraint("Horizontal", 1))
sketch16.addConstraint(Sketcher.Constraint("Vertical", 2))
sketch16.addConstraint(Sketcher.Constraint("Horizontal", 3))
sketch16.addConstraint(Sketcher.Constraint("DistanceX", 1, 1, 1, 2, 5.0))
sketch16.addConstraint(Sketcher.Constraint("DistanceY", 0, 2, 0, 1, 6.0))
sketch16.addConstraint(Sketcher.Constraint("DistanceX", -1, 1, 0, 2, 35.25))
sketch16.addConstraint(Sketcher.Constraint("DistanceY", 0, 2, -1, 1, 1.854098))
sketch16.setExpression("Constraints[8]", "Params.sketch16_width")
sketch16.setExpression("Constraints[9]", "Params.sketch16_height")
pad7 = body.newObject("PartDesign::Pad", "Pad006")
pad7.Profile = sketch16
pad7.setExpression("Length", "Params.pad7_length")

sketch17 = body.newObject("Sketcher::SketchObject", "Sketch016")
sketch17.AttachmentSupport = (doc.getObject("XY_Plane"), [""])
sketch17.MapMode = "FlatFace"
sketch17.AttachmentOffset = App.Placement(App.Vector(0, 0, 17.695183), App.Rotation())
sketch17.addGeometry(Part.LineSegment(App.Vector(11, 4, 0), App.Vector(11, -2, 0)), False)
sketch17.addGeometry(Part.LineSegment(App.Vector(11, -2, 0), App.Vector(16, -2, 0)), False)
sketch17.addGeometry(Part.LineSegment(App.Vector(16, -2, 0), App.Vector(16, 4, 0)), False)
sketch17.addGeometry(Part.LineSegment(App.Vector(16, 4, 0), App.Vector(11, 4, 0)), False)
sketch17.addConstraint(Sketcher.Constraint("Coincident", 0, 2, 1, 1))
sketch17.addConstraint(Sketcher.Constraint("Coincident", 1, 2, 2, 1))
sketch17.addConstraint(Sketcher.Constraint("Coincident", 2, 2, 3, 1))
sketch17.addConstraint(Sketcher.Constraint("Coincident", 3, 2, 0, 1))
sketch17.addConstraint(Sketcher.Constraint("Vertical", 0))
sketch17.addConstraint(Sketcher.Constraint("Horizontal", 1))
sketch17.addConstraint(Sketcher.Constraint("Vertical", 2))
sketch17.addConstraint(Sketcher.Constraint("Horizontal", 3))
sketch17.addConstraint(Sketcher.Constraint("DistanceX", 1, 1, 1, 2, 5.0))
sketch17.addConstraint(Sketcher.Constraint("DistanceY", 0, 2, 0, 1, 6.0))
sketch17.addConstraint(Sketcher.Constraint("DistanceX", -1, 1, 0, 2, 10.75))
sketch17.addConstraint(Sketcher.Constraint("DistanceY", 0, 2, -1, 1, 1.854098))
sketch17.setExpression("Constraints[8]", "Params.sketch17_width")
sketch17.setExpression("Constraints[9]", "Params.sketch17_height")
pad8 = body.newObject("PartDesign::Pad", "Pad007")
pad8.Profile = sketch17
pad8.setExpression("Length", "Params.pad8_length")

sketch18 = body.newObject("Sketcher::SketchObject", "Sketch017")
sketch18.AttachmentSupport = (doc.getObject("XZ_Plane"), [""])
sketch18.MapMode = "FlatFace"
sketch18.AttachmentOffset = App.Placement(App.Vector(0, 0, -4.145902), App.Rotation())
sketch18.addGeometry(Part.Circle(App.Vector(13.2, 16.7, 0), App.Vector(0, 0, 1), 0.6), False)
sketch18.addGeometry(Part.Circle(App.Vector(37.8, 16.7, 0), App.Vector(0, 0, 1), 0.6), False)
sketch18.addConstraint(Sketcher.Constraint("Equal", 0, 1))
sketch18.addConstraint(Sketcher.Constraint("Horizontal", 0, 3, 1, 3))
sketch18.addConstraint(Sketcher.Constraint("Diameter", 0, 1.2))
sketch18.addConstraint(Sketcher.Constraint("DistanceX", 0, 3, 1, 3, 24.5))
sketch18.addConstraint(Sketcher.Constraint("DistanceX", -1, 1, 0, 3, 13.25))
sketch18.addConstraint(Sketcher.Constraint("DistanceY", -1, 1, 0, 3, 16.695183))
sketch18.setExpression("Constraints[2]", "Params.sketch18_diameter")
pocket10 = body.newObject("PartDesign::Pocket", "Pocket009")
pocket10.Profile = sketch18
pocket10.setExpression("Length", "Params.pocket10_length")
pocket10.Reversed = True

sketch19 = body.newObject("Sketcher::SketchObject", "Sketch018")
sketch19.AttachmentSupport = (doc.getObject("XY_Plane"), [""])
sketch19.MapMode = "FlatFace"
sketch19.AttachmentOffset = App.Placement(App.Vector(0, 0, -6.054817), App.Rotation())
sketch19.addGeometry(Part.Circle(App.Vector(25.5, -1.4, 0), App.Vector(0, 0, 1), 2.5), False)
sketch19.addConstraint(Sketcher.Constraint("Diameter", 0, 5.1))
sketch19.addConstraint(Sketcher.Constraint("DistanceX", -1, 1, 0, 3, 25.5))
sketch19.addConstraint(Sketcher.Constraint("DistanceY", 0, 3, -1, 1, 1.354098))
sketch19.setExpression("Constraints[0]", "Params.sketch19_diameter")
pad9 = body.newObject("PartDesign::Pad", "Pad008")
pad9.Profile = sketch19
pad9.setExpression("Length", "Params.pad9_length")

sketch20 = body.newObject("Sketcher::SketchObject", "Sketch019")
sketch20.AttachmentSupport = (doc.getObject("YZ_Plane"), [""])
sketch20.MapMode = "FlatFace"
sketch20.AttachmentOffset = App.Placement(App.Vector(0, 0, 51), App.Rotation())
sketch20.addGeometry(Part.LineSegment(App.Vector(2, 19, 0), App.Vector(-10, 19, 0)), False)
sketch20.addGeometry(Part.LineSegment(App.Vector(-10, 19, 0), App.Vector(-10, -7, 0)), False)
sketch20.addGeometry(Part.LineSegment(App.Vector(-10, -7, 0), App.Vector(2, -7, 0)), False)
sketch20.addGeometry(Part.LineSegment(App.Vector(2, -7, 0), App.Vector(2, 19, 0)), False)
sketch20.addConstraint(Sketcher.Constraint("Coincident", 0, 2, 1, 1))
sketch20.addConstraint(Sketcher.Constraint("Coincident", 1, 2, 2, 1))
sketch20.addConstraint(Sketcher.Constraint("Coincident", 2, 2, 3, 1))
sketch20.addConstraint(Sketcher.Constraint("Coincident", 3, 2, 0, 1))
sketch20.addConstraint(Sketcher.Constraint("Horizontal", 0))
sketch20.addConstraint(Sketcher.Constraint("Vertical", 1))
sketch20.addConstraint(Sketcher.Constraint("Horizontal", 2))
sketch20.addConstraint(Sketcher.Constraint("Vertical", 3))
sketch20.addConstraint(Sketcher.Constraint("DistanceY", 1, 2, 1, 1, 25.28995))
sketch20.addConstraint(Sketcher.Constraint("DistanceX", 0, 2, 0, 1, 11.491486))
sketch20.addConstraint(Sketcher.Constraint("DistanceX", 0, 2, -1, 1, 9.845584))
sketch20.addConstraint(Sketcher.Constraint("DistanceY", -1, 1, 0, 2, 18.695183))
pocket11 = body.newObject("PartDesign::Pocket", "Pocket010")
pocket11.Profile = sketch20
pocket11.setExpression("Length", "Params.pocket11_length")

doc.recompute()
